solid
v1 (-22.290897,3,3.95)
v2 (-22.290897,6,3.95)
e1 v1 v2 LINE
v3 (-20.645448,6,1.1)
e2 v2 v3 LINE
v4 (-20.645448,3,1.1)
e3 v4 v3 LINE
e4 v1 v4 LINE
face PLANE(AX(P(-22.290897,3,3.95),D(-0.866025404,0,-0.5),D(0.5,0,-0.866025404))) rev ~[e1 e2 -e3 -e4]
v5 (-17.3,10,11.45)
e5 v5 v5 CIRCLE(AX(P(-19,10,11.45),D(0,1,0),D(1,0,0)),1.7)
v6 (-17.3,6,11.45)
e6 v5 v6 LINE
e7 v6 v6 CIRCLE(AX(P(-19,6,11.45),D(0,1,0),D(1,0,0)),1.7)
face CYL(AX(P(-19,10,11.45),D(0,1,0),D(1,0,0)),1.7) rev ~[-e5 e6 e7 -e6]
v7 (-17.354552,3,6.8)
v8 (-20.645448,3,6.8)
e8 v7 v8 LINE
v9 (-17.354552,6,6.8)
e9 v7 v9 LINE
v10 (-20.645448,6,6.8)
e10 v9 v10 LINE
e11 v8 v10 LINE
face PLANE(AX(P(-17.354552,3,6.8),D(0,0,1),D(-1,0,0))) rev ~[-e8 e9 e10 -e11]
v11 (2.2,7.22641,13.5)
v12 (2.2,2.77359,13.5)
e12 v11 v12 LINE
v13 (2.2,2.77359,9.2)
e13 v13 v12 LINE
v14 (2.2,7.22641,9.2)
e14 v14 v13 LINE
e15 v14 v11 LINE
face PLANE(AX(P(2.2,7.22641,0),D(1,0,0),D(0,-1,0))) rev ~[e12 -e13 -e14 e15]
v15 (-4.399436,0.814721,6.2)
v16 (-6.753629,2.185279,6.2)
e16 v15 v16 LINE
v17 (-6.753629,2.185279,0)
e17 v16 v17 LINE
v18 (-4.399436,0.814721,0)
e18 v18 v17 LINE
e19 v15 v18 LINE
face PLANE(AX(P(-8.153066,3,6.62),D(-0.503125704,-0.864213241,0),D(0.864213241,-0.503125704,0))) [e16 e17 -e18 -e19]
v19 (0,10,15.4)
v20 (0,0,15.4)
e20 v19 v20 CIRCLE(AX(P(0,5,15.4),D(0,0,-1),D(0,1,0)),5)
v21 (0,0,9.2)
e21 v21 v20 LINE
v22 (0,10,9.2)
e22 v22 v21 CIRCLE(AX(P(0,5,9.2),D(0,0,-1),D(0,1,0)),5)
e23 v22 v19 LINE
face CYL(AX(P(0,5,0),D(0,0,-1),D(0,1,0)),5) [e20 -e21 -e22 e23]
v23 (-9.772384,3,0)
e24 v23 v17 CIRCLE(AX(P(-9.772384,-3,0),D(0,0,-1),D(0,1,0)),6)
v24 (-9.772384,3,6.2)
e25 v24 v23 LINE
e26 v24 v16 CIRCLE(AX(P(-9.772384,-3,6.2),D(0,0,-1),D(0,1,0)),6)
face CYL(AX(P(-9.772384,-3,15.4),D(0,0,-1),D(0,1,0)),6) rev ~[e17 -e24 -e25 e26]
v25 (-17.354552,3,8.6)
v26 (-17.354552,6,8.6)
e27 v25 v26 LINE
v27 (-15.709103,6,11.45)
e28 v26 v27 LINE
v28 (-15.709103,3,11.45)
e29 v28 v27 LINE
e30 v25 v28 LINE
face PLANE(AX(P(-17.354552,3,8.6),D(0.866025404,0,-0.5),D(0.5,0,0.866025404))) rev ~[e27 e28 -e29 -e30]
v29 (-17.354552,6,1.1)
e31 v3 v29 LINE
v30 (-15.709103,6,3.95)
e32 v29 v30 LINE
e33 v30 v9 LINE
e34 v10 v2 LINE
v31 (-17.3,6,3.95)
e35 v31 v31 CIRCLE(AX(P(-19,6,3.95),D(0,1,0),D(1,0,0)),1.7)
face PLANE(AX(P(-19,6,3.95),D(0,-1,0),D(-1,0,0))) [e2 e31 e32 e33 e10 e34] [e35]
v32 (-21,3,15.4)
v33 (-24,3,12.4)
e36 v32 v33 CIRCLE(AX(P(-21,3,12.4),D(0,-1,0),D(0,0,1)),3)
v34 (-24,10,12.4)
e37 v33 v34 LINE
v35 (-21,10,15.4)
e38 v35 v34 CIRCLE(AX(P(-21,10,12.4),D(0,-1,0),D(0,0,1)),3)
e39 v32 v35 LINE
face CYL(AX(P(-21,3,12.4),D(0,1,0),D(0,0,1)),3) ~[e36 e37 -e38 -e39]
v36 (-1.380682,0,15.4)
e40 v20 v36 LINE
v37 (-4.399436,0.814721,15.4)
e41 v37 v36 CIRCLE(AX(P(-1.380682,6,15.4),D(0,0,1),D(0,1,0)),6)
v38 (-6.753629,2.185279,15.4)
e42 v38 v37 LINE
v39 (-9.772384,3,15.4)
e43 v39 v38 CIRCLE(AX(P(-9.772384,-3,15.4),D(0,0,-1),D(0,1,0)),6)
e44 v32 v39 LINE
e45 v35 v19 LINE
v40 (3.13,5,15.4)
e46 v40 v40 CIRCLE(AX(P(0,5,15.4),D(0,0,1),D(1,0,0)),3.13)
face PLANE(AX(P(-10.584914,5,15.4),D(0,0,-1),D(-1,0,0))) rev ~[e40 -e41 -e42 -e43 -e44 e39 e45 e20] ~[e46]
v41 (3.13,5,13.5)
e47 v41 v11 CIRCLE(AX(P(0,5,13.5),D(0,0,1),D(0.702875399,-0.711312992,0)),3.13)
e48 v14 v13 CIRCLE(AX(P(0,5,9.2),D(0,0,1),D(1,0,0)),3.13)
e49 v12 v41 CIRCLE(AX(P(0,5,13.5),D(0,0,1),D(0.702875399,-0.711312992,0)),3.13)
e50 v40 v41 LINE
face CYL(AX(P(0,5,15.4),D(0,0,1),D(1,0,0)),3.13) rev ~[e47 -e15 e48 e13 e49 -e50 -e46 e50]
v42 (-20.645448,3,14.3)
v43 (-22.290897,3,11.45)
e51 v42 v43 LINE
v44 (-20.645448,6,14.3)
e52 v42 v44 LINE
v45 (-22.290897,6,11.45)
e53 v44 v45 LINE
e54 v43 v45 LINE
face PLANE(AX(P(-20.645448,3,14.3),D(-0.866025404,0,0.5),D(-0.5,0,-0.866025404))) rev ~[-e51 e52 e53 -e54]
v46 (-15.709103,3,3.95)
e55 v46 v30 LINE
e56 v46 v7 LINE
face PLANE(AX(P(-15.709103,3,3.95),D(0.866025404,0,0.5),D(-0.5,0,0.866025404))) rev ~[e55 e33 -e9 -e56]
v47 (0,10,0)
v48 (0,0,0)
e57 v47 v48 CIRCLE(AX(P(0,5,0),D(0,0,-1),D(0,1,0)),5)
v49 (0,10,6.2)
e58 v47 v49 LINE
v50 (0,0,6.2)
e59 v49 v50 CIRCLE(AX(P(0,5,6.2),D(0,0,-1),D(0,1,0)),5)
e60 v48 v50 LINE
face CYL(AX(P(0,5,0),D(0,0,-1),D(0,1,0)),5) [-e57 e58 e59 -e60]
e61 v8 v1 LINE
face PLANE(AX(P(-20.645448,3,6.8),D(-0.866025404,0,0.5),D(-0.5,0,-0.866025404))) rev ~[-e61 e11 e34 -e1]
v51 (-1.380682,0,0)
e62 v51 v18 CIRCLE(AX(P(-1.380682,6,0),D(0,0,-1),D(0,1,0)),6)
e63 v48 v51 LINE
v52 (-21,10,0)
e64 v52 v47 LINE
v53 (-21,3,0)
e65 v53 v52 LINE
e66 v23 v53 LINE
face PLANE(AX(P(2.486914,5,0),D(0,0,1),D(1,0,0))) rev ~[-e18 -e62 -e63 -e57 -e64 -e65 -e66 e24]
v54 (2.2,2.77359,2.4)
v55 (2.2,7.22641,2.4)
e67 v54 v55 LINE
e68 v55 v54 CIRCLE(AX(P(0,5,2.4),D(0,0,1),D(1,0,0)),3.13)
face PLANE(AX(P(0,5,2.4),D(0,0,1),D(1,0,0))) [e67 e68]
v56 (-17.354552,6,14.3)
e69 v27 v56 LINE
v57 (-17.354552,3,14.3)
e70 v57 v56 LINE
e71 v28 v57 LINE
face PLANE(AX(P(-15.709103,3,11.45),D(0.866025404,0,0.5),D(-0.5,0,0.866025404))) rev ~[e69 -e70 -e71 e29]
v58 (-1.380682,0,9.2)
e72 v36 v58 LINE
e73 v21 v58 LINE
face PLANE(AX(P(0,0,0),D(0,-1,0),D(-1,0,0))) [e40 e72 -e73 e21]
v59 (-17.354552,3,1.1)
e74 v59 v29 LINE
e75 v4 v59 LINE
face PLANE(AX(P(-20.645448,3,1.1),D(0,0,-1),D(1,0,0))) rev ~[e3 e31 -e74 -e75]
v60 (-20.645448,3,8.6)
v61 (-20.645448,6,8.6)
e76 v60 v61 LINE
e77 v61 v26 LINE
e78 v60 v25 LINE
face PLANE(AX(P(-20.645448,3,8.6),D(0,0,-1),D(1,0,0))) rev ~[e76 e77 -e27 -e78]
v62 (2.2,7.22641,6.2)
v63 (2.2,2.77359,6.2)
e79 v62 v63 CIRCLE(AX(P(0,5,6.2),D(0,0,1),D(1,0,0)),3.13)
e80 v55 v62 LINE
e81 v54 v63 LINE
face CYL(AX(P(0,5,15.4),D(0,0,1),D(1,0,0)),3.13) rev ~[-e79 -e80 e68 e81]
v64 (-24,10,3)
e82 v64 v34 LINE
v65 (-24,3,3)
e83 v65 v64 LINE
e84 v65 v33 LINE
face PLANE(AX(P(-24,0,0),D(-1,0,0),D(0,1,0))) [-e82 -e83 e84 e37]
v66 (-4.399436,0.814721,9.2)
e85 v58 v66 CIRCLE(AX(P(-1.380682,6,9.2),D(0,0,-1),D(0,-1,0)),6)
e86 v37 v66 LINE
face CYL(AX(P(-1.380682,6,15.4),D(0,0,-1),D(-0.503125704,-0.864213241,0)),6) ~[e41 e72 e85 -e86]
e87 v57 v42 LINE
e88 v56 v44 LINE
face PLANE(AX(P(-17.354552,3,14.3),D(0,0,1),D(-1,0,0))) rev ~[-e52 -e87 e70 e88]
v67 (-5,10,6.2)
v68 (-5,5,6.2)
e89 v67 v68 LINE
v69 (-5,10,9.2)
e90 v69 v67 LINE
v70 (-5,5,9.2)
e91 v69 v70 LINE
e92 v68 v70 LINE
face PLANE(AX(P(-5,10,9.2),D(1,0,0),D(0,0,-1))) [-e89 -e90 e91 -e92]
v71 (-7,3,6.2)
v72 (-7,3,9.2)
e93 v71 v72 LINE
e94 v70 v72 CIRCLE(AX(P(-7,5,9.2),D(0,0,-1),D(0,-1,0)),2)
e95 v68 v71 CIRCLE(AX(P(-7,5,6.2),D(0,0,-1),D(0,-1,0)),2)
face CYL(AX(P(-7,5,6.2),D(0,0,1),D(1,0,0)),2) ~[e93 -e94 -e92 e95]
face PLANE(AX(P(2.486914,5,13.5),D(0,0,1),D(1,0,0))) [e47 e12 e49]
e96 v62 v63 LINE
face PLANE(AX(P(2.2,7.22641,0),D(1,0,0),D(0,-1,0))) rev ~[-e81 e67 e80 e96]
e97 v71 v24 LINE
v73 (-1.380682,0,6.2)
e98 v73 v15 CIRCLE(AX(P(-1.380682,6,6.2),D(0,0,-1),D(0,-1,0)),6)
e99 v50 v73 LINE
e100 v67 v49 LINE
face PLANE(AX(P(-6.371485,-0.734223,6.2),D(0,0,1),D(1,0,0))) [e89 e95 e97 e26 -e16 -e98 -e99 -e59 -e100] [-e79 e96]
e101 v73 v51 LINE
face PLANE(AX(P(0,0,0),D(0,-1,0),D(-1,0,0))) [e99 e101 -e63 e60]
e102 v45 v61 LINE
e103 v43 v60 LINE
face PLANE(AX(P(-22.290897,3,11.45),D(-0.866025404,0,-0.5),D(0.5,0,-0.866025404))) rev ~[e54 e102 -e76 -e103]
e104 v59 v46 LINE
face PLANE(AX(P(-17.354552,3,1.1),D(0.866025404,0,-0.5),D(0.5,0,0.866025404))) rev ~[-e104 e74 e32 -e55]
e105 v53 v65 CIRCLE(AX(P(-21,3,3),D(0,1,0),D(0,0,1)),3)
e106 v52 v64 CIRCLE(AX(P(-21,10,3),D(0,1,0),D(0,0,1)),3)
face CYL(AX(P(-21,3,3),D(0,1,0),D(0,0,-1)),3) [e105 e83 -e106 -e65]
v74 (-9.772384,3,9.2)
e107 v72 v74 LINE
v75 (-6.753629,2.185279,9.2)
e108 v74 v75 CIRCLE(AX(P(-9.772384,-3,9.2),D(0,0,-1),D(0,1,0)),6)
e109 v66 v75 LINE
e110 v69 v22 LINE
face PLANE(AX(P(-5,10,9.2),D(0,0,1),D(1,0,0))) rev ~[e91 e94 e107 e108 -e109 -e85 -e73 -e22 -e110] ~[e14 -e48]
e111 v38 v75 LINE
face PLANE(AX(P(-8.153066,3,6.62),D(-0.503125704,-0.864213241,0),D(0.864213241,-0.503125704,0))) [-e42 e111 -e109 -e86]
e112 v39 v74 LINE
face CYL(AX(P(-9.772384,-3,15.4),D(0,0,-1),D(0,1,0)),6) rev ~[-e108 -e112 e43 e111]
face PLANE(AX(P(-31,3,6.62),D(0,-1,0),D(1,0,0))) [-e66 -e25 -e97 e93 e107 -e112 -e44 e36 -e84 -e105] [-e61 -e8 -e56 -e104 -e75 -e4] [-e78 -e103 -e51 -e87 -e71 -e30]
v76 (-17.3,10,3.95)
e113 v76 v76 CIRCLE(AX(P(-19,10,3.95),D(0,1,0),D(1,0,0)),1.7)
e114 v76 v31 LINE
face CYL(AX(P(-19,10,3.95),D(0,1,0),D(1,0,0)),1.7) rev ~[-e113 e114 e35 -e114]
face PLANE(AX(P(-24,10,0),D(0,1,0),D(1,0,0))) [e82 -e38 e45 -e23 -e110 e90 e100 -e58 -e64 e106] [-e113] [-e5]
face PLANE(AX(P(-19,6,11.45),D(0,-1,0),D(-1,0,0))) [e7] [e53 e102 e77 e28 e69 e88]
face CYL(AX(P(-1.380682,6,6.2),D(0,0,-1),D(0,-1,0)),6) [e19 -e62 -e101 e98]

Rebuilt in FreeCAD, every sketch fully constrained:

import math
import FreeCAD as App
import Part
import Sketcher

V = App.Vector
Q = App.Units.Quantity


def edges_at(feature, points):
    """Names of the edges that pass closest to the given points."""
    edges = feature.Shape.Edges
    near = lambda p: min(range(len(edges)), key=lambda i: edges[i].distToShape(Part.Vertex(*p))[0])
    return sorted({f"Edge{near(p) + 1}" for p in points})

doc = App.newDocument("Part")
body = doc.addObject("PartDesign::Body", "Body")

sketch1 = body.newObject("Sketcher::SketchObject", "Sketch")
sketch1.AttachmentSupport = (doc.getObject("XY_Plane"), [""])
sketch1.MapMode = "FlatFace"
sketch1.addGeometry([
    Part.LineSegment(V(-24, 0, 0), V(0, 0, 0)),
    Part.ArcOfCircle(Part.Circle(V(0, 5, 0), V(0, 0, 1), 5), math.radians(-90), math.radians(90)),
    Part.LineSegment(V(0, 10, 0), V(-24, 10, 0)),
    Part.LineSegment(V(-24, 10, 0), V(-24, 0, 0)),
], False)
sketch1.addConstraint([
    Sketcher.Constraint("Tangent", 0, 2, 1, 1),
    Sketcher.Constraint("Tangent", 1, 2, 2, 1),
    Sketcher.Constraint("Coincident", 2, 2, 3, 1),
    Sketcher.Constraint("Coincident", 3, 2, 0, 1),
    Sketcher.Constraint("Horizontal", 0),
    Sketcher.Constraint("Horizontal", 2),
    Sketcher.Constraint("Vertical", 3),
    Sketcher.Constraint("Coincident", 0, 2, -1, 1),
    Sketcher.Constraint("Radius", 1, Q("5 mm")),
    Sketcher.Constraint("DistanceX", 0, 1, 0, 2, Q("24 mm")),
])
pad1 = body.newObject("PartDesign::Pad", "Pad")
pad1.Profile = sketch1
pad1.Length = 15.4

sketch2 = body.newObject("Sketcher::SketchObject", "Sketch001")
sketch2.AttachmentSupport = (doc.getObject("XY_Plane"), [""])
sketch2.MapMode = "FlatFace"
sketch2.AttachmentOffset = App.Placement(V(0, 0, 15.4), App.Rotation())
sketch2.addGeometry(Part.Circle(V(0, 5, 0), V(0, 0, 1), 3.1), False)
sketch2.addConstraint([
    Sketcher.Constraint("PointOnObject", 0, 3, -2),
    Sketcher.Constraint("Diameter", 0, Q("6.26 mm")),
    Sketcher.Constraint("DistanceY", -1, 1, 0, 3, Q("5 mm")),
])
pocket1 = body.newObject("PartDesign::Pocket", "Pocket")
pocket1.Profile = sketch2
pocket1.Length = 13

sketch3 = body.newObject("Sketcher::SketchObject", "Sketch002")
sketch3.AttachmentSupport = (doc.getObject("XY_Plane"), [""])
sketch3.MapMode = "FlatFace"
sketch3.AttachmentOffset = App.Placement(V(0, 0, 6.62), App.Rotation())
sketch3.addGeometry([
    Part.LineSegment(V(-31, 0, 0), V(-31, 3, 0)),
    Part.LineSegment(V(-31, 3, 0), V(-8.2, 3, 0)),
    Part.LineSegment(V(-8.2, 3, 0), V(-3, 0, 0)),
    Part.LineSegment(V(-3, 0, 0), V(-31, 0, 0)),
], False)
sketch3.addConstraint([
    Sketcher.Constraint("Coincident", 0, 2, 1, 1),
    Sketcher.Constraint("Coincident", 1, 2, 2, 1),
    Sketcher.Constraint("Coincident", 2, 2, 3, 1),
    Sketcher.Constraint("Coincident", 3, 2, 0, 1),
    Sketcher.Constraint("Vertical", 0),
    Sketcher.Constraint("Horizontal", 1),
    Sketcher.Constraint("Horizontal", 3),
    Sketcher.Constraint("PointOnObject", 2, 2, -1),
    Sketcher.Constraint("DistanceX", 3, 2, 3, 1, Q("28 mm")),
    Sketcher.Constraint("DistanceY", 0, 1, 0, 2, Q("3 mm")),
    Sketcher.Constraint("DistanceX", 0, 2, -1, 1, Q("31 mm")),
    Sketcher.Constraint("DistanceX", 1, 1, 1, 2, Q("22.846934 mm")),
])
pocket2 = body.newObject("PartDesign::Pocket", "Pocket001")
pocket2.Profile = sketch3
pocket2.Type = "ThroughAll"
pocket2.Midplane = True

sketch4 = body.newObject("Sketcher::SketchObject", "Sketch003")
sketch4.AttachmentSupport = (doc.getObject("XY_Plane"), [""])
sketch4.MapMode = "FlatFace"
sketch4.addGeometry([
    Part.LineSegment(V(2.2, 7.2, 0), V(2.2, 2.8, 0)),
    Part.ArcOfCircle(Part.Circle(V(0, 5, 0), V(0, 0, 1), 3.1), math.radians(-45), math.radians(45)),
], False)
sketch4.addConstraint([
    Sketcher.Constraint("Coincident", 0, 1, 1, 2),
    Sketcher.Constraint("Coincident", 1, 1, 0, 2),
    Sketcher.Constraint("Vertical", 0),
    Sketcher.Constraint("PointOnObject", 1, 3, -2),
    Sketcher.Constraint("Radius", 1, Q("3.13 mm")),
    Sketcher.Constraint("DistanceY", -1, 1, 1, 3, Q("5 mm")),
    Sketcher.Constraint("DistanceX", -1, 1, 0, 1, Q("2.2 mm")),
])
pad2 = body.newObject("PartDesign::Pad", "Pad001")
pad2.Profile = sketch4
pad2.Length = 13.5

sketch5 = body.newObject("Sketcher::SketchObject", "Sketch004")
sketch5.AttachmentSupport = (doc.getObject("XZ_Plane"), [""])
sketch5.MapMode = "FlatFace"
sketch5.AttachmentOffset = App.Placement(V(0, 0, -10), App.Rotation())
sketch5.addGeometry([
    Part.LineSegment(V(-5, 6.2, 0), V(-5, 9.2, 0)),
    Part.LineSegment(V(-5, 9.2, 0), V(5, 9.2, 0)),
    Part.LineSegment(V(5, 9.2, 0), V(5, 6.2, 0)),
    Part.LineSegment(V(5, 6.2, 0), V(-5, 6.2, 0)),
], False)
sketch5.addConstraint([
    Sketcher.Constraint("Coincident", 0, 2, 1, 1),
    Sketcher.Constraint("Coincident", 1, 2, 2, 1),
    Sketcher.Constraint("Coincident", 2, 2, 3, 1),
    Sketcher.Constraint("Coincident", 3, 2, 0, 1),
    Sketcher.Constraint("Vertical", 0),
    Sketcher.Constraint("Horizontal", 1),
    Sketcher.Constraint("Vertical", 2),
    Sketcher.Constraint("Horizontal", 3),
    Sketcher.Constraint("DistanceX", 1, 1, 1, 2, Q("10 mm")),
    Sketcher.Constraint("DistanceY", 0, 1, 0, 2, Q("3 mm")),
    Sketcher.Constraint("DistanceX", 0, 2, -1, 1, Q("5 mm")),
    Sketcher.Constraint("DistanceY", -1, 1, 0, 2, Q("9.2 mm")),
])
pocket3 = body.newObject("PartDesign::Pocket", "Pocket002")
pocket3.Profile = sketch5
pocket3.Type = "ThroughAll"
pocket3.Reversed = True
doc.recompute()

fillet = body.newObject("PartDesign::Fillet", "Fillet")
fillet.Base = (pocket3, edges_at(pocket3, [(-24, 6.5, 0), (-24, 6.5, 15.4)]))
fillet.Radius = 3
doc.recompute()

fillet2 = body.newObject("PartDesign::Fillet", "Fillet001")
fillet2.Base = (fillet, edges_at(fillet, [(-3, 0, 12.3), (-8.153, 3, 7.7), (-3, 0, 3.1)]))
fillet2.Radius = 6

sketch6 = body.newObject("Sketcher::SketchObject", "Sketch005")
sketch6.AttachmentSupport = (doc.getObject("XY_Plane"), [""])
sketch6.MapMode = "FlatFace"
sketch6.AttachmentOffset = App.Placement(V(0, 0, 9.2), App.Rotation())
sketch6.addGeometry([
    Part.LineSegment(V(-14, 3, 0), V(-4, 3, 0)),
    Part.LineSegment(V(-4, 3, 0), V(-1, -7, 0)),
    Part.LineSegment(V(-1, -7, 0), V(-14, 3, 0)),
], False)
sketch6.addConstraint([
    Sketcher.Constraint("Coincident", 0, 2, 1, 1),
    Sketcher.Constraint("Coincident", 1, 2, 2, 1),
    Sketcher.Constraint("Coincident", 2, 2, 0, 1),
    Sketcher.Constraint("Horizontal", 0),
    Sketcher.Constraint("DistanceX", 0, 1, 0, 2, Q("10 mm")),
    Sketcher.Constraint("DistanceY", -1, 1, 0, 2, Q("3 mm")),
    Sketcher.Constraint("Distance", 1, Q("10.695001 mm")),
    Sketcher.Constraint("DistanceX", 0, 2, 1, 2, Q("3.234729 mm")),
    Sketcher.Constraint("DistanceX", 0, 2, -1, 1, Q("3.986195 mm")),
])
pocket4 = body.newObject("PartDesign::Pocket", "Pocket003")
pocket4.Profile = sketch6
pocket4.Length = 3
doc.recompute()

fillet3 = body.newObject("PartDesign::Fillet", "Fillet002")
fillet3.Base = (pocket4, edges_at(pocket4, [(-5, 3, 7.7)]))
fillet3.Radius = 2

sketch7 = body.newObject("Sketcher::SketchObject", "Sketch006")
sketch7.AttachmentSupport = (doc.getObject("XZ_Plane"), [""])
sketch7.MapMode = "FlatFace"
sketch7.AttachmentOffset = App.Placement(V(0, 0, -10), App.Rotation())
sketch7.addGeometry([
    Part.Circle(V(-19, 4, 0), V(0, 0, 1), 1.7),
    Part.Circle(V(-19, 11.4, 0), V(0, 0, 1), 1.7),
], False)
sketch7.addConstraint([
    Sketcher.Constraint("Equal", 0, 1),
    Sketcher.Constraint("Vertical", 0, 3, 1, 3),
    Sketcher.Constraint("Diameter", 0, Q("3.4 mm")),
    Sketcher.Constraint("DistanceX", 0, 3, -1, 1, Q("19 mm")),
    Sketcher.Constraint("DistanceY", 0, 3, 1, 3, Q("7.5 mm")),
    Sketcher.Constraint("DistanceY", -1, 1, 0, 3, Q("3.95 mm")),
])
pocket5 = body.newObject("PartDesign::Pocket", "Pocket004")
pocket5.Profile = sketch7
pocket5.Type = "ThroughAll"
pocket5.Reversed = True

sketch8 = body.newObject("Sketcher::SketchObject", "Sketch007")
sketch8.AttachmentSupport = (doc.getObject("XZ_Plane"), [""])
sketch8.MapMode = "FlatFace"
sketch8.AttachmentOffset = App.Placement(V(0, 0, -3), App.Rotation())
sketch8.addGeometry([
    Part.LineSegment(V(-15.7, 4, 0), V(-17.4, 6.8, 0)),
    Part.LineSegment(V(-17.4, 6.8, 0), V(-20.6, 6.8, 0)),
    Part.LineSegment(V(-20.6, 6.8, 0), V(-22.3, 4, 0)),
    Part.LineSegment(V(-22.3, 4, 0), V(-20.6, 1.1, 0)),
    Part.LineSegment(V(-20.6, 1.1, 0), V(-17.4, 1.1, 0)),
    Part.LineSegment(V(-17.4, 1.1, 0), V(-15.7, 4, 0)),
    Part.LineSegment(V(-15.7, 11.4, 0), V(-17.4, 14.3, 0)),
    Part.LineSegment(V(-17.4, 14.3, 0), V(-20.6, 14.3, 0)),
    Part.LineSegment(V(-20.6, 14.3, 0), V(-22.3, 11.4, 0)),
    Part.LineSegment(V(-22.3, 11.4, 0), V(-20.6, 8.6, 0)),
    Part.LineSegment(V(-20.6, 8.6, 0), V(-17.4, 8.6, 0)),
    Part.LineSegment(V(-17.4, 8.6, 0), V(-15.7, 11.4, 0)),
], False)
sketch8.addConstraint([
    Sketcher.Constraint("Coincident", 0, 2, 1, 1),
    Sketcher.Constraint("Coincident", 1, 2, 2, 1),
    Sketcher.Constraint("Coincident", 2, 2, 3, 1),
    Sketcher.Constraint("Coincident", 3, 2, 4, 1),
    Sketcher.Constraint("Coincident", 4, 2, 5, 1),
    Sketcher.Constraint("Coincident", 5, 2, 0, 1),
    Sketcher.Constraint("Coincident", 6, 2, 7, 1),
    Sketcher.Constraint("Coincident", 7, 2, 8, 1),
    Sketcher.Constraint("Coincident", 8, 2, 9, 1),
    Sketcher.Constraint("Coincident", 9, 2, 10, 1),
    Sketcher.Constraint("Coincident", 10, 2, 11, 1),
    Sketcher.Constraint("Coincident", 11, 2, 6, 1),
    Sketcher.Constraint("Horizontal", 1),
    Sketcher.Constraint("Horizontal", 4),
    Sketcher.Constraint("Horizontal", 7),
    Sketcher.Constraint("Horizontal", 10),
    Sketcher.Constraint("Parallel", 0, 3),
    Sketcher.Constraint("Parallel", 2, 5),
    Sketcher.Constraint("Parallel", 3, 6),
    Sketcher.Constraint("Parallel", 5, 8),
    Sketcher.Constraint("Parallel", 6, 9),
    Sketcher.Constraint("Parallel", 8, 11),
    Sketcher.Constraint("Horizontal", 2, 2, 5, 2),
    Sketcher.Constraint("Horizontal", 8, 2, 11, 2),
    Sketcher.Constraint("Vertical", 1, 2, 3, 2),
    Sketcher.Constraint("Vertical", 0, 2, 4, 2),
    Sketcher.Constraint("Vertical", 4, 2, 6, 2),
    Sketcher.Constraint("Vertical", 3, 2, 7, 2),
    Sketcher.Constraint("Vertical", 2, 2, 8, 2),
    Sketcher.Constraint("Vertical", 7, 2, 9, 2),
    Sketcher.Constraint("Angle", 0, Q("120 deg")),
    Sketcher.Constraint("DistanceY", -1, 1, 0, 2, Q("6.8 mm")),
    Sketcher.Constraint("DistanceY", -1, 1, 3, 2, Q("1.1 mm")),
    Sketcher.Constraint("DistanceY", -1, 1, 6, 2, Q("14.3 mm")),
    Sketcher.Constraint("DistanceX", 1, 2, 1, 1, Q("3.290897 mm")),
    Sketcher.Constraint("DistanceX", 0, 2, -1, 1, Q("17.354552 mm")),
])
pocket6 = body.newObject("PartDesign::Pocket", "Pocket005")
pocket6.Profile = sketch8
pocket6.Length = 3

doc.recompute()
